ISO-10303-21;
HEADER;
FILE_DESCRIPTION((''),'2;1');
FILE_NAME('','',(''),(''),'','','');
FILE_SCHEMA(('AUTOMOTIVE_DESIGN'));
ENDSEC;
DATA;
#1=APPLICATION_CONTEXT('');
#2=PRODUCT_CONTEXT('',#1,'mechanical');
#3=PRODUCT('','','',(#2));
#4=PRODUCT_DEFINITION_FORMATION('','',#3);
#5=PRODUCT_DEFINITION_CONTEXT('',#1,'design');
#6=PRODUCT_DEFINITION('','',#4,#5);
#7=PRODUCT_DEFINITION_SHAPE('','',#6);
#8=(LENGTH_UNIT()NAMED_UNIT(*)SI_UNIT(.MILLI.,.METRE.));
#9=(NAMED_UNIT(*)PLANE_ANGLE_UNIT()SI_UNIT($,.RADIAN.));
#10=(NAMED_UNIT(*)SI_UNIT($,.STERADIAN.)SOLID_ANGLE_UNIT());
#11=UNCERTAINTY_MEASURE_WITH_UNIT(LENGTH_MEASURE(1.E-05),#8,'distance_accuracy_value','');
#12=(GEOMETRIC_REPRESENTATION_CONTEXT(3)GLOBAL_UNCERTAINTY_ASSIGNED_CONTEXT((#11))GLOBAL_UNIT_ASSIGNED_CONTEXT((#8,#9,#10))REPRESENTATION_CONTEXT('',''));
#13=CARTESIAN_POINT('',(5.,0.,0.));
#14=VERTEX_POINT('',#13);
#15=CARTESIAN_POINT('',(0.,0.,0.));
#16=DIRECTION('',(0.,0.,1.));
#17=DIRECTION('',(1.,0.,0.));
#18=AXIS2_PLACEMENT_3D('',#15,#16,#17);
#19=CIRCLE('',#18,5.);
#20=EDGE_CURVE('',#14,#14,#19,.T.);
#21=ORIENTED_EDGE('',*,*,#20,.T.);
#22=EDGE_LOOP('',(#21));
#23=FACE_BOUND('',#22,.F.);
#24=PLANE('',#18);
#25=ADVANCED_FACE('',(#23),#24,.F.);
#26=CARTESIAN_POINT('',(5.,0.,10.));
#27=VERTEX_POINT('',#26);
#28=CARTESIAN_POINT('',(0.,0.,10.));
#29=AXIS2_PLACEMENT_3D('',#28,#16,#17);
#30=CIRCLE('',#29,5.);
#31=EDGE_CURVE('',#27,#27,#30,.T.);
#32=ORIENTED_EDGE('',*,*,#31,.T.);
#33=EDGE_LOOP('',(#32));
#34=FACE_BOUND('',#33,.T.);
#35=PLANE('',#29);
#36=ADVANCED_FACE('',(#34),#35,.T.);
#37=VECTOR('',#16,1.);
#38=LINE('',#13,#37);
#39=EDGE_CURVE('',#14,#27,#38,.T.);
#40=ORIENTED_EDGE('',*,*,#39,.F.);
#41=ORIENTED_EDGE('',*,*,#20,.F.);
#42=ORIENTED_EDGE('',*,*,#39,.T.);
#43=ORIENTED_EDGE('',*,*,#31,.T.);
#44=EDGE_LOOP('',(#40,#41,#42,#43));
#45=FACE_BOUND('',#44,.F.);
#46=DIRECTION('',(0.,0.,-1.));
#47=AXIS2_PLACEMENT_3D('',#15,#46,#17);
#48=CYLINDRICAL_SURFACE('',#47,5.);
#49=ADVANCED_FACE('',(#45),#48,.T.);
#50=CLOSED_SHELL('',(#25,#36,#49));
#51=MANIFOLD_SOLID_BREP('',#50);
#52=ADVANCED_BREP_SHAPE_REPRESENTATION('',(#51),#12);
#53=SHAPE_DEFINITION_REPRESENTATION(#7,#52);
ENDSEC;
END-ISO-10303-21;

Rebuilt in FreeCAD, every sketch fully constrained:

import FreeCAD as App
import Part
import Sketcher

doc = App.newDocument("Part")
body = doc.addObject("PartDesign::Body", "Body")

# Sketch on XY plane
sketch1 = doc.addObject("Sketcher::SketchObject", "Sketch")
body.addObject(sketch1)
sketch1.AttachmentSupport = (doc.XY_Plane, [""])
sketch1.MapMode = "FlatFace"
sketch1.addGeometry(Part.Circle(App.Vector(0, 0, 0), App.Vector(0, 0, 1), 5), False)
sketch1.addConstraint([
    Sketcher.Constraint("Coincident", 0, 3, -1, 1),
    Sketcher.Constraint("Diameter", 0, 10.0),
])
pad1 = doc.addObject("PartDesign::Pad", "Pad")
body.addObject(pad1)
pad1.Profile = sketch1
pad1.Length = 10

doc.recompute()
